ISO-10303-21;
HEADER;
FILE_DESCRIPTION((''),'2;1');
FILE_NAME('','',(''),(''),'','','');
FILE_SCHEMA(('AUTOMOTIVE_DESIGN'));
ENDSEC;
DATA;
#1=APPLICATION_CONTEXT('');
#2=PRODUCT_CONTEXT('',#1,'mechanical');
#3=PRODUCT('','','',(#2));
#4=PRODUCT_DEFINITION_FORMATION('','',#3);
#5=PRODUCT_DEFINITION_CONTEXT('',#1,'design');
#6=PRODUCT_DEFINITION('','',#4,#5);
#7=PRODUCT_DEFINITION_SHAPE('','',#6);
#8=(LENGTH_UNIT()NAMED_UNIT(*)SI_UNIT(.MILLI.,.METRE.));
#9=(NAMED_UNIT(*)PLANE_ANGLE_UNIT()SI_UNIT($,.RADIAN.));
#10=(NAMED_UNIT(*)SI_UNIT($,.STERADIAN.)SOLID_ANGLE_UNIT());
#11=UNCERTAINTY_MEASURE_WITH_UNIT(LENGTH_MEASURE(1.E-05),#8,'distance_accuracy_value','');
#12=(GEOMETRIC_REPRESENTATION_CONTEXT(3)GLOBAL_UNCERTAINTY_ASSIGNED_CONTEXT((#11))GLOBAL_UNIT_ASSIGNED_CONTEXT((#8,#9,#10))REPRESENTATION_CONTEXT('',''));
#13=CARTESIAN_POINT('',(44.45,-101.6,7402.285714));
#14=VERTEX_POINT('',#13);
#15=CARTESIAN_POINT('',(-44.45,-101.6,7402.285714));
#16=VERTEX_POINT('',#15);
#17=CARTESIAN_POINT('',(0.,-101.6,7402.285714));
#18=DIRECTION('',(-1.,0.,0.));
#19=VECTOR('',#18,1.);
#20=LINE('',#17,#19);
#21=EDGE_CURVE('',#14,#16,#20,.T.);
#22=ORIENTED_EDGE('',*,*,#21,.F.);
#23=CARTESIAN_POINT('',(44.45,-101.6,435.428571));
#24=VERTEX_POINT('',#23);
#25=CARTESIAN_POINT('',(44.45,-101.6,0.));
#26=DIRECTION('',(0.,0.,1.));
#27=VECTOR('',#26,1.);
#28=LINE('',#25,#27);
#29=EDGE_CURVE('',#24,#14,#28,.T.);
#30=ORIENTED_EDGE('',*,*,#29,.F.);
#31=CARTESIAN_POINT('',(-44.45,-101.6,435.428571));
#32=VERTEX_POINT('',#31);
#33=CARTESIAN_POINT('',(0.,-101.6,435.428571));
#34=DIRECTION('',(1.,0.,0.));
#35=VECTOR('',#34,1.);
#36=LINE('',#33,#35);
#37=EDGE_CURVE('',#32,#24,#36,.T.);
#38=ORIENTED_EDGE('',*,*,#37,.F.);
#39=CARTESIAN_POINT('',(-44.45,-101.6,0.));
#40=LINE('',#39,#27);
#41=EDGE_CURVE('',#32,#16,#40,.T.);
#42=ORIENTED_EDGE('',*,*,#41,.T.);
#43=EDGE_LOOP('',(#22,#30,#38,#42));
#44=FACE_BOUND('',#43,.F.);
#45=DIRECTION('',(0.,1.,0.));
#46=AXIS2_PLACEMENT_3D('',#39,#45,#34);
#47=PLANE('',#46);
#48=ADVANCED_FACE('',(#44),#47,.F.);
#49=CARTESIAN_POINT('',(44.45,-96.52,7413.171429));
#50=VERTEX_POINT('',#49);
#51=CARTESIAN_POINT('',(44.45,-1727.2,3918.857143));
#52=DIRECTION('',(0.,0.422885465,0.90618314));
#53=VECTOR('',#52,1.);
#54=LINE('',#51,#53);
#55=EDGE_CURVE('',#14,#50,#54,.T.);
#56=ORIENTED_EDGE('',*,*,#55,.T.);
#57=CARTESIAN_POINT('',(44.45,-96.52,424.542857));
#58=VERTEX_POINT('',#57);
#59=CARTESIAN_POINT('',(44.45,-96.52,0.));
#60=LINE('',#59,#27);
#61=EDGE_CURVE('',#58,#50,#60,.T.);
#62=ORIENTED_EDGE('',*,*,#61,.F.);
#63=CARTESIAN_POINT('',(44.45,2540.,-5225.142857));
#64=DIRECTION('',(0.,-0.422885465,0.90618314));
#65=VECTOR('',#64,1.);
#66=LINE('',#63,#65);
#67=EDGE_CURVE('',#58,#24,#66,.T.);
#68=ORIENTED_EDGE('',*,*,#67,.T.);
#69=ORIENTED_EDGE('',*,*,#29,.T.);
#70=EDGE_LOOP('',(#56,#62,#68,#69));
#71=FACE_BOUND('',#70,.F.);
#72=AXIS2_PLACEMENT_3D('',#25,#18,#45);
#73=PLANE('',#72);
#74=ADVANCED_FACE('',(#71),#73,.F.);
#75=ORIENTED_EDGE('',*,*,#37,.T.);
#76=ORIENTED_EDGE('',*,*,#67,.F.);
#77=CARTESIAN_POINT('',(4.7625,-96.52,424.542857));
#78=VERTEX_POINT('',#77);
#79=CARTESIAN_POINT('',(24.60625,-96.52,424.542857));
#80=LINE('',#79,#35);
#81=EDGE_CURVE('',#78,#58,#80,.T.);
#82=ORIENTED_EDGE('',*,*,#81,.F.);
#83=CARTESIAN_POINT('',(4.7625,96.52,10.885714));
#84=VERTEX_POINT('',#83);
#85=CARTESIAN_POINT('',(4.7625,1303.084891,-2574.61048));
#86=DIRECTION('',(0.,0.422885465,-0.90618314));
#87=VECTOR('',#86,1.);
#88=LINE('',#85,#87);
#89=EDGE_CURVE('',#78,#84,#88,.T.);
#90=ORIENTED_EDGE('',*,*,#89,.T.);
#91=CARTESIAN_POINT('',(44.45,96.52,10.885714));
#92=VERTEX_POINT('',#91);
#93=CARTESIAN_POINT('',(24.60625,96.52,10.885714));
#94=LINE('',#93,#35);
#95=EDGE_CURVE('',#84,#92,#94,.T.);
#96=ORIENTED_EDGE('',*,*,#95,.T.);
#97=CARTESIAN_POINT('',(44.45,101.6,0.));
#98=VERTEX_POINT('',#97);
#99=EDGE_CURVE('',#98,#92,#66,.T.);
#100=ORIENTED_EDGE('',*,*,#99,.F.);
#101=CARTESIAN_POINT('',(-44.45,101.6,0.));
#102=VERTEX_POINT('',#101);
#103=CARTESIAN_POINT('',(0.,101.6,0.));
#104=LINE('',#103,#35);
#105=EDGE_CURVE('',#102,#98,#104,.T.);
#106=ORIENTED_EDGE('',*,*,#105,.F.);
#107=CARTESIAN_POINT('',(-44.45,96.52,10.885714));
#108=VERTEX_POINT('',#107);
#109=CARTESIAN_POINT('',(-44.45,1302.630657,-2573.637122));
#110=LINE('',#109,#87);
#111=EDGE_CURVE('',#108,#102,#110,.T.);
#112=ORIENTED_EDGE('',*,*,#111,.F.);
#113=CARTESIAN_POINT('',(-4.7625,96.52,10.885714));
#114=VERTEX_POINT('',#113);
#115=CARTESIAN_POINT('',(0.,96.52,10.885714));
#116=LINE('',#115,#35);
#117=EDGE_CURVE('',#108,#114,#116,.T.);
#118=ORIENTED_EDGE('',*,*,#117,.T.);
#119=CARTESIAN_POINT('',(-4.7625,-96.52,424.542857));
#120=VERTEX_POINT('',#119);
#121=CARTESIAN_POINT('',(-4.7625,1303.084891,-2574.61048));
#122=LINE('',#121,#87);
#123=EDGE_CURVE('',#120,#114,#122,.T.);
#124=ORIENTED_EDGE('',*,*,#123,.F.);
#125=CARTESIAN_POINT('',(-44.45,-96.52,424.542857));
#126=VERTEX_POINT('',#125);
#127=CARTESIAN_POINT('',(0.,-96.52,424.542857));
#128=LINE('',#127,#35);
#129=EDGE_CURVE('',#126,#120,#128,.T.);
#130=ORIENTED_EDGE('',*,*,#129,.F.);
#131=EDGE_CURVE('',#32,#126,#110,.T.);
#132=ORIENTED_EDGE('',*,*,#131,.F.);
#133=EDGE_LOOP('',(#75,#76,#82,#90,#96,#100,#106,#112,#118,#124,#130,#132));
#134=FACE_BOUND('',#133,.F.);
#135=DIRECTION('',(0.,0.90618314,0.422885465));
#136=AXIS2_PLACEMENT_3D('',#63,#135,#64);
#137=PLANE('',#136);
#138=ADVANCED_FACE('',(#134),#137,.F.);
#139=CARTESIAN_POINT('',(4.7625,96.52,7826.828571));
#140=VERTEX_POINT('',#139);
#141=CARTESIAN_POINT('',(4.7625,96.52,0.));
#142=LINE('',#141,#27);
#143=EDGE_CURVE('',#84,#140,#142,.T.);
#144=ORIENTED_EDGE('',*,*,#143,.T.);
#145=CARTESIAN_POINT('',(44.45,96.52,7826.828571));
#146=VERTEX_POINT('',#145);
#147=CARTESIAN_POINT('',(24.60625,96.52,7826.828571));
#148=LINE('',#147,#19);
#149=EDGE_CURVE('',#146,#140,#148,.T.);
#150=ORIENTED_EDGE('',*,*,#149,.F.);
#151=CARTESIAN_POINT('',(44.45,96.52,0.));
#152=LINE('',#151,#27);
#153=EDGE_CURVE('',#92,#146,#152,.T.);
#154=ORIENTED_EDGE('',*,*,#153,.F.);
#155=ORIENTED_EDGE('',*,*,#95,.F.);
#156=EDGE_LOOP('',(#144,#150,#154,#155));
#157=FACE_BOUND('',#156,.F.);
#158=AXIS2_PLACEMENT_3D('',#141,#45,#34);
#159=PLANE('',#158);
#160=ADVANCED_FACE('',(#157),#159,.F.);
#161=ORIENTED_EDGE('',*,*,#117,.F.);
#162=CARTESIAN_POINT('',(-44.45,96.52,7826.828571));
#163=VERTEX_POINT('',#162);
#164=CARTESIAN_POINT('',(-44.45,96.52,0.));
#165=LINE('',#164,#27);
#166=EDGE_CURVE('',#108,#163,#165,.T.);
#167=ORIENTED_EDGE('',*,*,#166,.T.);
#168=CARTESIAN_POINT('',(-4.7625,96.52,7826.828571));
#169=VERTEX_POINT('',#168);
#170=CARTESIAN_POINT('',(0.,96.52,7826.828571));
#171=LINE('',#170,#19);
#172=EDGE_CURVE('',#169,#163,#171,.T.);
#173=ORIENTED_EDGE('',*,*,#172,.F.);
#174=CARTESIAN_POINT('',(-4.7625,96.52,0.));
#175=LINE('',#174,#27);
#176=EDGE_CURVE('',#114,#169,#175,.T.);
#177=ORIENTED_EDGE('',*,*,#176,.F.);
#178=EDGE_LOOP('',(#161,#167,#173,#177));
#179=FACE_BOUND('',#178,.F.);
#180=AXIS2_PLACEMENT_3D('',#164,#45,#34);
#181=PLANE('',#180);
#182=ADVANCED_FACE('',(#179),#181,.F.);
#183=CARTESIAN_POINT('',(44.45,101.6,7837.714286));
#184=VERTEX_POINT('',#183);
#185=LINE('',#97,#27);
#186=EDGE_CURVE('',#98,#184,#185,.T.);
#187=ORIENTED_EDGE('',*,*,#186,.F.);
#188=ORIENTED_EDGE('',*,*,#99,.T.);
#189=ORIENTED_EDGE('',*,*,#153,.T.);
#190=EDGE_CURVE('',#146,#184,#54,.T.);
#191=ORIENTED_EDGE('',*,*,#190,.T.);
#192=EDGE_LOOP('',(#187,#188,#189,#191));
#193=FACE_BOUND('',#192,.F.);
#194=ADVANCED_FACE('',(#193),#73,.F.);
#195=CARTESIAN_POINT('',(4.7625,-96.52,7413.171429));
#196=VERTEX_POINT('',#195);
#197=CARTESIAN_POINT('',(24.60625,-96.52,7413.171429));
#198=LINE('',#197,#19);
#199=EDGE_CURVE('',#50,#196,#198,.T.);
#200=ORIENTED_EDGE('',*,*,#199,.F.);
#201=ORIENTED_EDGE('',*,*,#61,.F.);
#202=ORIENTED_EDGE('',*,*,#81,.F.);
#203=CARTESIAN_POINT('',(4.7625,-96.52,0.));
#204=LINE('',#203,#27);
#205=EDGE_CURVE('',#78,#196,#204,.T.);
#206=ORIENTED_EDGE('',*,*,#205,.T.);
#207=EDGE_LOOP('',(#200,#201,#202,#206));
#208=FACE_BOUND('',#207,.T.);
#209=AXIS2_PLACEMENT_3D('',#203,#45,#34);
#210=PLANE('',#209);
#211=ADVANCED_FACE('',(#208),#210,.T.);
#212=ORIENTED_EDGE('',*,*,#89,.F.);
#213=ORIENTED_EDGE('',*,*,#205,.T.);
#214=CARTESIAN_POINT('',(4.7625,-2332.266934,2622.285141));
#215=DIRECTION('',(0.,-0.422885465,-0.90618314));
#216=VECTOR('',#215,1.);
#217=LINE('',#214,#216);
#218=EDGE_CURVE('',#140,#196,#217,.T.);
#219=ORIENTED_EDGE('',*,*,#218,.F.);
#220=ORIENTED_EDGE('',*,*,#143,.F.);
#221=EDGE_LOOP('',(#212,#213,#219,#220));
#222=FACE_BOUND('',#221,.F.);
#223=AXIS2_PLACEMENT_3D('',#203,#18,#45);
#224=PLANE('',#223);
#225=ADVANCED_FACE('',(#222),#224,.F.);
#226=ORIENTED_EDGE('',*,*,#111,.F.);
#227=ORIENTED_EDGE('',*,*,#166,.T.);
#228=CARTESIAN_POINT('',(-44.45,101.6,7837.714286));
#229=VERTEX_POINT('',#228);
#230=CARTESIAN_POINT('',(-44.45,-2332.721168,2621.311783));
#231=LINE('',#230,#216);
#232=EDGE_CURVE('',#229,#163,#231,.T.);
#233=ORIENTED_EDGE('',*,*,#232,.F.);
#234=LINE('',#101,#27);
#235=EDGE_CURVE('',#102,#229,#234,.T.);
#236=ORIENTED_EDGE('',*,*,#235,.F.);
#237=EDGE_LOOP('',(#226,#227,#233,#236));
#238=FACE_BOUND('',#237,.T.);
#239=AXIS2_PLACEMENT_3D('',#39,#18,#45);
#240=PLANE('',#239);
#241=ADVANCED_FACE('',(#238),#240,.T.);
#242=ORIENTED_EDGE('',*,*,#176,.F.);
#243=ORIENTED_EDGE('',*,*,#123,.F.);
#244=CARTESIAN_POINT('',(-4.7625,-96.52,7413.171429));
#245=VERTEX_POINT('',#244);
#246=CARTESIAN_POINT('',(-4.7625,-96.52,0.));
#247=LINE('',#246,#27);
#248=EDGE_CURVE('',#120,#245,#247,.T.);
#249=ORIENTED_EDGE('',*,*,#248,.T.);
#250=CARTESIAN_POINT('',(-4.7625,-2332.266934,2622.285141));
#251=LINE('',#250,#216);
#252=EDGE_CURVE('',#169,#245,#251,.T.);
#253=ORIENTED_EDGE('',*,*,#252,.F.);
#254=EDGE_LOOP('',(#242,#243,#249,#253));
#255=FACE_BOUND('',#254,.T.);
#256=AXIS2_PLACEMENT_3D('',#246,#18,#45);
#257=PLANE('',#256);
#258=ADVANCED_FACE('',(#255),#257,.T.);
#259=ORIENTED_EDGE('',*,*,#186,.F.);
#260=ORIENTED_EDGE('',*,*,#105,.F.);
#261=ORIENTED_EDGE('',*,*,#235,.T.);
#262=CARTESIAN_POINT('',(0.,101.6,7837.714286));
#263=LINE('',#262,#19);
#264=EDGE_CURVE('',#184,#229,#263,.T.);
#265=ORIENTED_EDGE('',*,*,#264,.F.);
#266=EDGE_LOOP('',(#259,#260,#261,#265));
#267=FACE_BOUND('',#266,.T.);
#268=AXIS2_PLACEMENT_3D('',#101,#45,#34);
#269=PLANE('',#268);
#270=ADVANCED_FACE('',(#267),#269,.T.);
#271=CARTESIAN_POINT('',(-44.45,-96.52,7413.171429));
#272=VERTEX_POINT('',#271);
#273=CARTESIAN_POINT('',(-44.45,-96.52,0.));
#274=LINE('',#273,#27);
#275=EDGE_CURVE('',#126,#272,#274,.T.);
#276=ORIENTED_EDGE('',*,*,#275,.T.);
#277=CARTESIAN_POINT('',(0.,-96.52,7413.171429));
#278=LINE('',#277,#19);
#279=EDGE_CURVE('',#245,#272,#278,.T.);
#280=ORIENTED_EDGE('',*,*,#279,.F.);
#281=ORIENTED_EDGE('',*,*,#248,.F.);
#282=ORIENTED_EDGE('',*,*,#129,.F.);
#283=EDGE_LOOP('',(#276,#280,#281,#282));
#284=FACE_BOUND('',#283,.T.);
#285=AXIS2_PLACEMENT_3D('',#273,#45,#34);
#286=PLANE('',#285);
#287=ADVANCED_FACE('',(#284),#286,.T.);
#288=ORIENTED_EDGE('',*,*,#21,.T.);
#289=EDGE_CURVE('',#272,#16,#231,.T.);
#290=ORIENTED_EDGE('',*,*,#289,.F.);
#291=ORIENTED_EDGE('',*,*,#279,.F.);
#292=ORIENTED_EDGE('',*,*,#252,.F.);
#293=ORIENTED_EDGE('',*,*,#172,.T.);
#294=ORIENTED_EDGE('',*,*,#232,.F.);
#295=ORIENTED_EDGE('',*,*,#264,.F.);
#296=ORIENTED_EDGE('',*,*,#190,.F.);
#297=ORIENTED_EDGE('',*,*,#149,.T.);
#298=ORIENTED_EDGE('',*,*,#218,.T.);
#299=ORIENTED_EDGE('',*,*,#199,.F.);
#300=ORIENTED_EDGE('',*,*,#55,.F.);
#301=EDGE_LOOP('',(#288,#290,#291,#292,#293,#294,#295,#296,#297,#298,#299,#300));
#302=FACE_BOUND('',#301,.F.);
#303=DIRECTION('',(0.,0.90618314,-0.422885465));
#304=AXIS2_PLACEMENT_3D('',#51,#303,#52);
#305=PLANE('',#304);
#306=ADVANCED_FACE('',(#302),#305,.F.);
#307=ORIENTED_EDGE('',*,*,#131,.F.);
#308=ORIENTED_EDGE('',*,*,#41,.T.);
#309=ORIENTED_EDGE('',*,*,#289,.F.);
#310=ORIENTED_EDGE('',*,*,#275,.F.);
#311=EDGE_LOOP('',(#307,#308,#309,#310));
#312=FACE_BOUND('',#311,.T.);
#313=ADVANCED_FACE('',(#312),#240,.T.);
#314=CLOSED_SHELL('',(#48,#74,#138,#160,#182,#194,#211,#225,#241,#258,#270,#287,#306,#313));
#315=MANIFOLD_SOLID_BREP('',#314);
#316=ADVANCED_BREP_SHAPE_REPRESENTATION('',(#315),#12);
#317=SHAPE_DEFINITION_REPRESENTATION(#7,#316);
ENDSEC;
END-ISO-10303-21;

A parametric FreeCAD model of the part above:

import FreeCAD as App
import Part
import Sketcher
Q = App.Units.Quantity

doc = App.newDocument("Part")
body = doc.addObject("PartDesign::Body", "Body")

# Sketch on XY plane
sketch1 = body.newObject("Sketcher::SketchObject", "Sketch")
sketch1.AttachmentSupport = (doc.getObject("XY_Plane"), [""])
sketch1.MapMode = "FlatFace"
sketch1.addGeometry([
    Part.LineSegment(App.Vector(-44, 102, 0), App.Vector(-44, -102, 0)),
    Part.LineSegment(App.Vector(-44, -102, 0), App.Vector(44, -102, 0)),
    Part.LineSegment(App.Vector(44, -102, 0), App.Vector(44, 102, 0)),
    Part.LineSegment(App.Vector(44, 102, 0), App.Vector(-44, 102, 0)),
], False)
sketch1.addConstraint([
    Sketcher.Constraint("Coincident", 0, 2, 1, 1),
    Sketcher.Constraint("Coincident", 1, 2, 2, 1),
    Sketcher.Constraint("Coincident", 2, 2, 3, 1),
    Sketcher.Constraint("Coincident", 3, 2, 0, 1),
    Sketcher.Constraint("Vertical", 0),
    Sketcher.Constraint("Horizontal", 1),
    Sketcher.Constraint("Vertical", 2),
    Sketcher.Constraint("Horizontal", 3),
    Sketcher.Constraint("Symmetric", 0, 2, 2, 2, -1, 1),
    Sketcher.Constraint("DistanceY", 0, 2, 0, 1, Q("8 in")),
    Sketcher.Constraint("DistanceX", 1, 1, 1, 2, Q("3.5 in")),
])
pad1 = body.newObject("PartDesign::Pad", "Pad")
pad1.Profile = sketch1
pad1.Length = Q("420 in")

# Sketch on XY plane
sketch2 = body.newObject("Sketcher::SketchObject", "Sketch001")
sketch2.AttachmentSupport = (doc.getObject("XY_Plane"), [""])
sketch2.MapMode = "FlatFace"
sketch2.addGeometry([
    Part.LineSegment(App.Vector(-44, 97, 0), App.Vector(-44, -97, 0)),  # 0
    Part.LineSegment(App.Vector(-44, -97, 0), App.Vector(-5, -97, 0)),  # 1
    Part.LineSegment(App.Vector(-5, -97, 0), App.Vector(-5, 97, 0)),  # 2
    Part.LineSegment(App.Vector(-5, 97, 0), App.Vector(-44, 97, 0)),  # 3
    Part.LineSegment(App.Vector(5, 97, 0), App.Vector(5, -97, 0)),  # 4
    Part.LineSegment(App.Vector(5, -97, 0), App.Vector(44, -97, 0)),  # 5
    Part.LineSegment(App.Vector(44, -97, 0), App.Vector(44, 97, 0)),  # 6
    Part.LineSegment(App.Vector(44, 97, 0), App.Vector(5, 97, 0)),  # 7
], False)
sketch2.addConstraint([
    Sketcher.Constraint("Coincident", 0, 2, 1, 1),
    Sketcher.Constraint("Coincident", 1, 2, 2, 1),
    Sketcher.Constraint("Coincident", 2, 2, 3, 1),
    Sketcher.Constraint("Coincident", 3, 2, 0, 1),
    Sketcher.Constraint("Coincident", 4, 2, 5, 1),
    Sketcher.Constraint("Coincident", 5, 2, 6, 1),
    Sketcher.Constraint("Coincident", 6, 2, 7, 1),
    Sketcher.Constraint("Coincident", 7, 2, 4, 1),
    Sketcher.Constraint("Vertical", 0),
    Sketcher.Constraint("Horizontal", 1),
    Sketcher.Constraint("Vertical", 2),
    Sketcher.Constraint("Horizontal", 3),
    Sketcher.Constraint("Vertical", 4),
    Sketcher.Constraint("Horizontal", 5),
    Sketcher.Constraint("Vertical", 6),
    Sketcher.Constraint("Horizontal", 7),
    Sketcher.Constraint("Symmetric", 2, 2, 4, 2, -1, 1),
    Sketcher.Constraint("Symmetric", 0, 2, 6, 2, -1, 1),
    Sketcher.Constraint("Horizontal", 1, 2, 4, 2),
    Sketcher.Constraint("DistanceY", 0, 2, 0, 1, Q("7.6 in")),
    Sketcher.Constraint("DistanceX", 0, 2, 5, 2, Q("3.5 in")),
    Sketcher.Constraint("DistanceX", 1, 1, 1, 2, Q("1.5625 in")),
])
pocket1 = body.newObject("PartDesign::Pocket", "Pocket")
pocket1.Profile = sketch2
pocket1.Type = "ThroughAll"
pocket1.Reversed = True

# Sketch on YZ plane
sketch3 = body.newObject("Sketcher::SketchObject", "Sketch002")
sketch3.AttachmentSupport = (doc.getObject("YZ_Plane"), [""])
sketch3.MapMode = "FlatFace"
sketch3.AttachmentOffset = App.Placement(App.Vector(0, 0, 1.75 * 25.4), App.Rotation())
sketch3.addGeometry([
    Part.LineSegment(App.Vector(-1613, 13063, 0), App.Vector(-1727, 3919, 0)),  # 0
    Part.LineSegment(App.Vector(-1727, 3919, 0), App.Vector(2540, 13063, 0)),  # 1
    Part.LineSegment(App.Vector(2540, 13063, 0), App.Vector(-1613, 13063, 0)),  # 2
    Part.LineSegment(App.Vector(-1727, 3919, 0), App.Vector(-1727, -5225, 0)),  # 3
    Part.LineSegment(App.Vector(-1727, -5225, 0), App.Vector(2540, -5225, 0)),  # 4
    Part.LineSegment(App.Vector(2540, -5225, 0), App.Vector(-1727, 3919, 0)),  # 5
], False)
sketch3.addConstraint([
    Sketcher.Constraint("Coincident", 0, 2, 1, 1),
    Sketcher.Constraint("Coincident", 1, 2, 2, 1),
    Sketcher.Constraint("Coincident", 2, 2, 0, 1),
    Sketcher.Constraint("Coincident", 3, 2, 4, 1),
    Sketcher.Constraint("Coincident", 4, 2, 5, 1),
    Sketcher.Constraint("Coincident", 5, 2, 3, 1),
    Sketcher.Constraint("Horizontal", 2),
    Sketcher.Constraint("Vertical", 3),
    Sketcher.Constraint("Horizontal", 4),
    Sketcher.Constraint("Coincident", 5, 2, 0, 2),
    Sketcher.Constraint("Vertical", 1, 2, 4, 2),
    Sketcher.Constraint("Equal", 1, 5),
    Sketcher.Constraint("DistanceX", 4, 1, 4, 2, Q("168 in")),
    Sketcher.Constraint("DistanceY", 3, 2, 3, 1, Q("360 in")),
    Sketcher.Constraint("DistanceX", 0, 2, -1, 1, Q("68 in")),
    Sketcher.Constraint("DistanceX", 2, 2, 2, 1, 4152.55765),
    Sketcher.Constraint("DistanceY", -1, 1, 0, 2, 3918.857143),
])
pocket2 = body.newObject("PartDesign::Pocket", "Pocket001")
pocket2.Profile = sketch3
pocket2.Type = "ThroughAll"

doc.recompute()
